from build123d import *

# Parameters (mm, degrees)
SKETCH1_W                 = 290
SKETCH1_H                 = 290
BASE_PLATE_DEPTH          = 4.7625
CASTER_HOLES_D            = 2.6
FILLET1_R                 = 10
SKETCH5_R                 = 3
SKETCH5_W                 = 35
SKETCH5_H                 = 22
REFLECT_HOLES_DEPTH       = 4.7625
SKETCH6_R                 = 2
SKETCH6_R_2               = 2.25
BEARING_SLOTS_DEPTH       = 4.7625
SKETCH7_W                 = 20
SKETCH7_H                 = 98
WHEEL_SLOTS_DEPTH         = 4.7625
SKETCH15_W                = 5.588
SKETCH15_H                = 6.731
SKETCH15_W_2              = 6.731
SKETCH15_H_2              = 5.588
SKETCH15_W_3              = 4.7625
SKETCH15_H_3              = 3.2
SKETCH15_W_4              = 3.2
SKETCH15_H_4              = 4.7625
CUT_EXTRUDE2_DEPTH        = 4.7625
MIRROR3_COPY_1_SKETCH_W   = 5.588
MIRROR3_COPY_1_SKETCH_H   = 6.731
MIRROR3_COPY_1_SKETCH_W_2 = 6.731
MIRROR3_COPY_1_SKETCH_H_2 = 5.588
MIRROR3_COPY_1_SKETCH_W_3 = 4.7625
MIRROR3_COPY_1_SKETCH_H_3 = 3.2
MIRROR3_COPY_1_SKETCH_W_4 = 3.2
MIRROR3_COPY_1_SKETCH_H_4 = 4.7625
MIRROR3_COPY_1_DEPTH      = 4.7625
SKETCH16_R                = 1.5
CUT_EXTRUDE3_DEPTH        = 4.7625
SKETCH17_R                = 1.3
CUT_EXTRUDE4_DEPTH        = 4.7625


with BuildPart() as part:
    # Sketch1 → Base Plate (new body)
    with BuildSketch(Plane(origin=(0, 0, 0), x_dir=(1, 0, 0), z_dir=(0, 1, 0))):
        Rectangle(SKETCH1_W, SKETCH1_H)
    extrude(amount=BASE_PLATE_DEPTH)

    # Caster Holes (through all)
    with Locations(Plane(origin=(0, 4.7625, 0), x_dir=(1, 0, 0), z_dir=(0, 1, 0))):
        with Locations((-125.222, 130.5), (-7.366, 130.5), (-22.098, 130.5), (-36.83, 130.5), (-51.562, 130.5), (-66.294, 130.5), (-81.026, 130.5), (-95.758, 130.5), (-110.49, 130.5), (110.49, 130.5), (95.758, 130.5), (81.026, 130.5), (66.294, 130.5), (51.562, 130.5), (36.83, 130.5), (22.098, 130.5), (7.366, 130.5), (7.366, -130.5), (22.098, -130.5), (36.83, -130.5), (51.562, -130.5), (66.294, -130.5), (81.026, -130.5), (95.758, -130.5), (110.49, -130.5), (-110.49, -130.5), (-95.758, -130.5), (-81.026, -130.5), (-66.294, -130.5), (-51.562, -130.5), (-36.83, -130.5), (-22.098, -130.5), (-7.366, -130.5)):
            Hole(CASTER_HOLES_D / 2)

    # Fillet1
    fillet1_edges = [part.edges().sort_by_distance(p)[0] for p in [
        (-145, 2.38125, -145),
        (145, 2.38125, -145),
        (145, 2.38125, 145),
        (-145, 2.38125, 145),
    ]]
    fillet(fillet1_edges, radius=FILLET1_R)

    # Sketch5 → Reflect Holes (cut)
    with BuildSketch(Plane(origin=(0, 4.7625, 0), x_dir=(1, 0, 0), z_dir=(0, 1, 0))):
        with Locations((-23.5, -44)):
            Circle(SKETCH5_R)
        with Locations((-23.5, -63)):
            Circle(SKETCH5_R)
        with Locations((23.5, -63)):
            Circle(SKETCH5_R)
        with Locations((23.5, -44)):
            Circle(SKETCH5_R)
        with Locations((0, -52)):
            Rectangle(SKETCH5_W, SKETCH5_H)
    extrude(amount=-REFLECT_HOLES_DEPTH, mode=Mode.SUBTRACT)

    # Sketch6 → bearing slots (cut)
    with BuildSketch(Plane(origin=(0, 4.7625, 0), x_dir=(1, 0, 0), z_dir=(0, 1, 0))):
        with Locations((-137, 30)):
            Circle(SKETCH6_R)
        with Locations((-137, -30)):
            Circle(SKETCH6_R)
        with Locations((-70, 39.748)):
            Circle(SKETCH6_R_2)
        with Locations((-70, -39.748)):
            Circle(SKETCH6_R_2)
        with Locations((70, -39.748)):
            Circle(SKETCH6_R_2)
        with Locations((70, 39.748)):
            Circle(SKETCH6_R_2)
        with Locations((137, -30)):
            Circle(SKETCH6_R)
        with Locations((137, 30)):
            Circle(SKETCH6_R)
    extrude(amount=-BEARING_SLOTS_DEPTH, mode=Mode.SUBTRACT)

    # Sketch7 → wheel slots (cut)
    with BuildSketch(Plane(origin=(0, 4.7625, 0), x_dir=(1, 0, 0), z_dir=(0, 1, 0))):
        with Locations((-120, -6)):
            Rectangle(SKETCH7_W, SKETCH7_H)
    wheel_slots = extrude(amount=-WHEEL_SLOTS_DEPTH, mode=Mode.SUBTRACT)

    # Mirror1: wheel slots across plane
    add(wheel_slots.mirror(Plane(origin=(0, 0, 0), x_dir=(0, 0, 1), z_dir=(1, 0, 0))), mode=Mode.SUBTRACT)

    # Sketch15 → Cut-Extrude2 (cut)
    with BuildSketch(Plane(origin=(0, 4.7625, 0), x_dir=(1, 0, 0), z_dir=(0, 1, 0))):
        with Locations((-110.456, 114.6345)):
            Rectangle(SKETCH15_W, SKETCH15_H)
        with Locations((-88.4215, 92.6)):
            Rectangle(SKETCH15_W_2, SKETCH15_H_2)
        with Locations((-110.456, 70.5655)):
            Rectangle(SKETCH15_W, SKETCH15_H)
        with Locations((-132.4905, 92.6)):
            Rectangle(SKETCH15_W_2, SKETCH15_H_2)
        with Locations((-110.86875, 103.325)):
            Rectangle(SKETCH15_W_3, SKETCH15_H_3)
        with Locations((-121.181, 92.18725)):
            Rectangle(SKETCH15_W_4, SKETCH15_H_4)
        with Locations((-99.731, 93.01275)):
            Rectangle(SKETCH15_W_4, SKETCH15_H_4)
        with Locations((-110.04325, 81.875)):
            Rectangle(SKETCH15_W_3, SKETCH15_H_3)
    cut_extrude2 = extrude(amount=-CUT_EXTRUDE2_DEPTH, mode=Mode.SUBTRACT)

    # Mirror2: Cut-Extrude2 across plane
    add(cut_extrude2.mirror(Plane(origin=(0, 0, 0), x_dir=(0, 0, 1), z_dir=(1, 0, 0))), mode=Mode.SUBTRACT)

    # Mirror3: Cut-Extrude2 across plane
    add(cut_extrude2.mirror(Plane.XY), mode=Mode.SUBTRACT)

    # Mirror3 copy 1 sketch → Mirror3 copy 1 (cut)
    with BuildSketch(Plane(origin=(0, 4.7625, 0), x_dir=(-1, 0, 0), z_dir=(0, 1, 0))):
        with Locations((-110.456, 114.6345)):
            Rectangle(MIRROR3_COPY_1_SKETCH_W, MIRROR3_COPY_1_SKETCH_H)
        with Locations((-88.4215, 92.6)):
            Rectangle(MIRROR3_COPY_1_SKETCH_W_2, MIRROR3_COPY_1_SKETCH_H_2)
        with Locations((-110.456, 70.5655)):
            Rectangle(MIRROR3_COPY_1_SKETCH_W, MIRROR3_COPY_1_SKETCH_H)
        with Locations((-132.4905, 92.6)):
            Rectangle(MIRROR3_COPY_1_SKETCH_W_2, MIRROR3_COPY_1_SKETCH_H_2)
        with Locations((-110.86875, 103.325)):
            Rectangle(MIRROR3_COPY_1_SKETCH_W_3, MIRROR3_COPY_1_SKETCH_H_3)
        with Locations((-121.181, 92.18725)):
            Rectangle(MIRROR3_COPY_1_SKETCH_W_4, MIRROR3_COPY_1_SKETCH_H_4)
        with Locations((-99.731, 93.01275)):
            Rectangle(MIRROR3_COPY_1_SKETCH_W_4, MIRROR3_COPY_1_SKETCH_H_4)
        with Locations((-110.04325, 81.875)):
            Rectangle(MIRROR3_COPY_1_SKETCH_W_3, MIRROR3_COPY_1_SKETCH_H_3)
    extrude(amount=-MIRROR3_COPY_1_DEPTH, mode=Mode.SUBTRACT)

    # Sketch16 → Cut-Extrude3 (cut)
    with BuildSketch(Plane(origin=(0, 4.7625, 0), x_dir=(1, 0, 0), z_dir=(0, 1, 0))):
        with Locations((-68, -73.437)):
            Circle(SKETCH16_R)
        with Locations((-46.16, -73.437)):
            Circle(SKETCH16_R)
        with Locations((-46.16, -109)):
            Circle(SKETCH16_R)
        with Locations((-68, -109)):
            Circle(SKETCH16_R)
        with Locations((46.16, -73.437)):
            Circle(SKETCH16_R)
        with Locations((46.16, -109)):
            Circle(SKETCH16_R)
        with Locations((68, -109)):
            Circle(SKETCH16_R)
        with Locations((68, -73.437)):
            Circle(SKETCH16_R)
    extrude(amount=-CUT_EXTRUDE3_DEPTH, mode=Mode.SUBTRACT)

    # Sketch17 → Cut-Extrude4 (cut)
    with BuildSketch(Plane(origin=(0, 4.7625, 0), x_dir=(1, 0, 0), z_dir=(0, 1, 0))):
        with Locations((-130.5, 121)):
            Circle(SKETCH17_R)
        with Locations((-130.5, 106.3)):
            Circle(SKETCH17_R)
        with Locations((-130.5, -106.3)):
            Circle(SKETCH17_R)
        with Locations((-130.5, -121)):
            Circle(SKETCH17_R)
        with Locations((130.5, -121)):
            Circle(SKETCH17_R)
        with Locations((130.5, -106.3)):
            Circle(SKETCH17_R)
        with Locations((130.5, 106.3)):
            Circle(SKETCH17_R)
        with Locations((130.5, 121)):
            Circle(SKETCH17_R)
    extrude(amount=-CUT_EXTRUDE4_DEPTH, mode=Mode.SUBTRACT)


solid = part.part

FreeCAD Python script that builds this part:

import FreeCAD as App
import Part
import Sketcher
Q = App.Units.Quantity


def edges_at(feature, points):
    """Names of the edges that pass closest to the given points."""
    edges = feature.Shape.Edges
    near = lambda p: min(range(len(edges)), key=lambda i: edges[i].distToShape(Part.Vertex(*p))[0])
    return sorted({f"Edge{near(p) + 1}" for p in points})

doc = App.newDocument("Part")
body = doc.addObject("PartDesign::Body", "Body")

sketch1 = body.newObject("Sketcher::SketchObject", "Sketch")
sketch1.AttachmentSupport = (doc.getObject("XZ_Plane"), [""])
sketch1.MapMode = "FlatFace"
sketch1.addGeometry([
    Part.LineSegment(App.Vector(-145, -145, 0), App.Vector(-145, 145, 0)),
    Part.LineSegment(App.Vector(-145, 145, 0), App.Vector(145, 145, 0)),
    Part.LineSegment(App.Vector(145, 145, 0), App.Vector(145, -145, 0)),
    Part.LineSegment(App.Vector(145, -145, 0), App.Vector(-145, -145, 0)),
], False)
sketch1.addConstraint([
    Sketcher.Constraint("Coincident", 0, 2, 1, 1),
    Sketcher.Constraint("Coincident", 1, 2, 2, 1),
    Sketcher.Constraint("Coincident", 2, 2, 3, 1),
    Sketcher.Constraint("Coincident", 3, 2, 0, 1),
    Sketcher.Constraint("Vertical", 0),
    Sketcher.Constraint("Horizontal", 1),
    Sketcher.Constraint("Vertical", 2),
    Sketcher.Constraint("Horizontal", 3),
    Sketcher.Constraint("Symmetric", 0, 2, 2, 2, -1, 1),
    Sketcher.Constraint("Equal", 3, 0),
    Sketcher.Constraint("DistanceX", 1, 1, 1, 2, Q("290 mm")),
])
pad1 = body.newObject("PartDesign::Pad", "Pad")
pad1.Profile = sketch1
pad1.Length = 4.7625
pad1.Reversed = True

sketch2 = body.newObject("Sketcher::SketchObject", "Sketch001")
sketch2.AttachmentSupport = (doc.getObject("XZ_Plane"), [""])
sketch2.MapMode = "FlatFace"
sketch2.AttachmentOffset = App.Placement(App.Vector(0, 0, -4.7625), App.Rotation())
sketch2.addGeometry([
    Part.Circle(App.Vector(-125.2, -130.5, 0), App.Vector(0, 0, 1), 1.3),
    Part.Circle(App.Vector(-7.4, -130.5, 0), App.Vector(0, 0, 1), 1.3),
    Part.Circle(App.Vector(-22.1, -130.5, 0), App.Vector(0, 0, 1), 1.3),
    Part.Circle(App.Vector(-36.8, -130.5, 0), App.Vector(0, 0, 1), 1.3),
    Part.Circle(App.Vector(-51.6, -130.5, 0), App.Vector(0, 0, 1), 1.3),
    Part.Circle(App.Vector(-66.3, -130.5, 0), App.Vector(0, 0, 1), 1.3),
    Part.Circle(App.Vector(-81, -130.5, 0), App.Vector(0, 0, 1), 1.3),
    Part.Circle(App.Vector(-95.8, -130.5, 0), App.Vector(0, 0, 1), 1.3),
    Part.Circle(App.Vector(-110.5, -130.5, 0), App.Vector(0, 0, 1), 1.3),
    Part.Circle(App.Vector(110.5, -130.5, 0), App.Vector(0, 0, 1), 1.3),
    Part.Circle(App.Vector(95.8, -130.5, 0), App.Vector(0, 0, 1), 1.3),
    Part.Circle(App.Vector(81, -130.5, 0), App.Vector(0, 0, 1), 1.3),
    Part.Circle(App.Vector(66.3, -130.5, 0), App.Vector(0, 0, 1), 1.3),
    Part.Circle(App.Vector(51.6, -130.5, 0), App.Vector(0, 0, 1), 1.3),
    Part.Circle(App.Vector(36.8, -130.5, 0), App.Vector(0, 0, 1), 1.3),
    Part.Circle(App.Vector(22.1, -130.5, 0), App.Vector(0, 0, 1), 1.3),
    Part.Circle(App.Vector(7.4, -130.5, 0), App.Vector(0, 0, 1), 1.3),
    Part.Circle(App.Vector(7.4, 130.5, 0), App.Vector(0, 0, 1), 1.3),
    Part.Circle(App.Vector(22.1, 130.5, 0), App.Vector(0, 0, 1), 1.3),
    Part.Circle(App.Vector(36.8, 130.5, 0), App.Vector(0, 0, 1), 1.3),
    Part.Circle(App.Vector(51.6, 130.5, 0), App.Vector(0, 0, 1), 1.3),
    Part.Circle(App.Vector(66.3, 130.5, 0), App.Vector(0, 0, 1), 1.3),
    Part.Circle(App.Vector(81, 130.5, 0), App.Vector(0, 0, 1), 1.3),
    Part.Circle(App.Vector(95.8, 130.5, 0), App.Vector(0, 0, 1), 1.3),
    Part.Circle(App.Vector(110.5, 130.5, 0), App.Vector(0, 0, 1), 1.3),
    Part.Circle(App.Vector(-110.5, 130.5, 0), App.Vector(0, 0, 1), 1.3),
    Part.Circle(App.Vector(-95.8, 130.5, 0), App.Vector(0, 0, 1), 1.3),
    Part.Circle(App.Vector(-81, 130.5, 0), App.Vector(0, 0, 1), 1.3),
    Part.Circle(App.Vector(-66.3, 130.5, 0), App.Vector(0, 0, 1), 1.3),
    Part.Circle(App.Vector(-51.6, 130.5, 0), App.Vector(0, 0, 1), 1.3),
    Part.Circle(App.Vector(-36.8, 130.5, 0), App.Vector(0, 0, 1), 1.3),
    Part.Circle(App.Vector(-22.1, 130.5, 0), App.Vector(0, 0, 1), 1.3),
    Part.Circle(App.Vector(-7.4, 130.5, 0), App.Vector(0, 0, 1), 1.3),
], False)
sketch2.addConstraint([
    Sketcher.Constraint("Equal", 0, 1),
    Sketcher.Constraint("Equal", 1, 2),
    Sketcher.Constraint("Equal", 2, 3),
    Sketcher.Constraint("Equal", 3, 4),
    Sketcher.Constraint("Equal", 4, 5),
    Sketcher.Constraint("Equal", 5, 6),
    Sketcher.Constraint("Equal", 6, 7),
    Sketcher.Constraint("Equal", 7, 8),
    Sketcher.Constraint("Equal", 8, 9),
    Sketcher.Constraint("Equal", 9, 10),
    Sketcher.Constraint("Equal", 10, 11),
    Sketcher.Constraint("Equal", 11, 12),
    Sketcher.Constraint("Equal", 12, 13),
    Sketcher.Constraint("Equal", 13, 14),
    Sketcher.Constraint("Equal", 14, 15),
    Sketcher.Constraint("Equal", 15, 16),
    Sketcher.Constraint("Equal", 16, 17),
    Sketcher.Constraint("Equal", 17, 18),
    Sketcher.Constraint("Equal", 18, 19),
    Sketcher.Constraint("Equal", 19, 20),
    Sketcher.Constraint("Equal", 20, 21),
    Sketcher.Constraint("Equal", 21, 22),
    Sketcher.Constraint("Equal", 22, 23),
    Sketcher.Constraint("Equal", 23, 24),
    Sketcher.Constraint("Equal", 24, 25),
    Sketcher.Constraint("Equal", 25, 26),
    Sketcher.Constraint("Equal", 26, 27),
    Sketcher.Constraint("Equal", 27, 28),
    Sketcher.Constraint("Equal", 28, 29),
    Sketcher.Constraint("Equal", 29, 30),
    Sketcher.Constraint("Equal", 30, 31),
    Sketcher.Constraint("Equal", 31, 32),
    Sketcher.Constraint("Symmetric", 1, 3, 17, 3, -1, 1),
    Sketcher.Constraint("Symmetric", 2, 3, 18, 3, -1, 1),
    Sketcher.Constraint("Symmetric", 3, 3, 19, 3, -1, 1),
    Sketcher.Constraint("Symmetric", 4, 3, 20, 3, -1, 1),
    Sketcher.Constraint("Symmetric", 5, 3, 21, 3, -1, 1),
    Sketcher.Constraint("Symmetric", 6, 3, 22, 3, -1, 1),
    Sketcher.Constraint("Symmetric", 7, 3, 23, 3, -1, 1),
    Sketcher.Constraint("Symmetric", 8, 3, 24, 3, -1, 1),
    Sketcher.Constraint("Symmetric", 9, 3, 25, 3, -1, 1),
    Sketcher.Constraint("Symmetric", 10, 3, 26, 3, -1, 1),
    Sketcher.Constraint("Symmetric", 11, 3, 27, 3, -1, 1),
    Sketcher.Constraint("Symmetric", 12, 3, 28, 3, -1, 1),
    Sketcher.Constraint("Symmetric", 13, 3, 29, 3, -1, 1),
    Sketcher.Constraint("Symmetric", 14, 3, 30, 3, -1, 1),
    Sketcher.Constraint("Symmetric", 15, 3, 31, 3, -1, 1),
    Sketcher.Constraint("Symmetric", 16, 3, 32, 3, -1, 1),
    Sketcher.Constraint("Symmetric", 8, 3, 9, 3, -2),
    Sketcher.Constraint("Symmetric", 7, 3, 10, 3, -2),
    Sketcher.Constraint("Symmetric", 6, 3, 11, 3, -2),
    Sketcher.Constraint("Symmetric", 5, 3, 12, 3, -2),
    Sketcher.Constraint("Symmetric", 4, 3, 13, 3, -2),
    Sketcher.Constraint("Symmetric", 3, 3, 14, 3, -2),
    Sketcher.Constraint("Symmetric", 2, 3, 15, 3, -2),
    Sketcher.Constraint("Symmetric", 1, 3, 16, 3, -2),
    Sketcher.Constraint("Horizontal", 0, 3, 1, 3),
    Sketcher.Constraint("Horizontal", 1, 3, 2, 3),
    Sketcher.Constraint("Horizontal", 2, 3, 3, 3),
    Sketcher.Constraint("Horizontal", 3, 3, 4, 3),
    Sketcher.Constraint("Horizontal", 4, 3, 5, 3),
    Sketcher.Constraint("Horizontal", 5, 3, 6, 3),
    Sketcher.Constraint("Horizontal", 6, 3, 7, 3),
    Sketcher.Constraint("Horizontal", 7, 3, 8, 3),
    Sketcher.Constraint("Diameter", 0, Q("2.6 mm")),
    Sketcher.Constraint("DistanceY", 16, 3, 17, 3, Q("261 mm")),
    Sketcher.Constraint("DistanceX", 3, 3, -1, 1, Q("36.83 mm")),
    Sketcher.Constraint("DistanceX", 8, 3, -1, 1, Q("110.49 mm")),
    Sketcher.Constraint("DistanceX", 0, 3, 4, 3, Q("73.66 mm")),
    Sketcher.Constraint("DistanceX", 4, 3, 10, 3, Q("147.32 mm")),
    Sketcher.Constraint("DistanceX", 1, 3, 12, 3, Q("73.66 mm")),
    Sketcher.Constraint("DistanceX", 17, 3, 22, 3, Q("73.66 mm")),
    Sketcher.Constraint("DistanceX", 18, 3, 23, 3, Q("73.66 mm")),
    Sketcher.Constraint("DistanceX", 0, 3, -1, 1, Q("125.222 mm")),
    Sketcher.Constraint("DistanceX", 1, 3, -1, 1, Q("7.366 mm")),
])
doc.recompute()
hole = body.newObject("PartDesign::Hole", "Hole")
hole.Profile = sketch2
hole.ThreadType = "None"
hole.Diameter = 2.6
hole.DepthType = "ThroughAll"
hole.Reversed = True
doc.recompute()

fillet = body.newObject("PartDesign::Fillet", "Fillet")
fillet.Base = (hole, edges_at(hole, [
    (-145, 2.381, -145),
    (145, 2.381, -145),
    (145, 2.381, 145),
    (-145, 2.381, 145),
]))
fillet.Radius = 10

sketch3 = body.newObject("Sketcher::SketchObject", "Sketch002")
sketch3.AttachmentSupport = (doc.getObject("XZ_Plane"), [""])
sketch3.MapMode = "FlatFace"
sketch3.AttachmentOffset = App.Placement(App.Vector(0, 0, -4.7625), App.Rotation())
sketch3.addGeometry([
    Part.Circle(App.Vector(-23.5, 44, 0), App.Vector(0, 0, 1), 3),
    Part.Circle(App.Vector(-23.5, 63, 0), App.Vector(0, 0, 1), 3),
    Part.Circle(App.Vector(23.5, 63, 0), App.Vector(0, 0, 1), 3),
    Part.Circle(App.Vector(23.5, 44, 0), App.Vector(0, 0, 1), 3),
    Part.LineSegment(App.Vector(-17.5, 41, 0), App.Vector(-17.5, 63, 0)),
    Part.LineSegment(App.Vector(-17.5, 63, 0), App.Vector(17.5, 63, 0)),
    Part.LineSegment(App.Vector(17.5, 63, 0), App.Vector(17.5, 41, 0)),
    Part.LineSegment(App.Vector(17.5, 41, 0), App.Vector(-17.5, 41, 0)),
], False)
sketch3.addConstraint([
    Sketcher.Constraint("Coincident", 4, 2, 5, 1),
    Sketcher.Constraint("Coincident", 5, 2, 6, 1),
    Sketcher.Constraint("Coincident", 6, 2, 7, 1),
    Sketcher.Constraint("Coincident", 7, 2, 4, 1),
    Sketcher.Constraint("Vertical", 4),
    Sketcher.Constraint("Horizontal", 5),
    Sketcher.Constraint("Vertical", 6),
    Sketcher.Constraint("Horizontal", 7),
    Sketcher.Constraint("Equal", 0, 1),
    Sketcher.Constraint("Equal", 1, 2),
    Sketcher.Constraint("Equal", 2, 3),
    Sketcher.Constraint("Symmetric", 1, 3, 2, 3, -2),
    Sketcher.Constraint("Symmetric", 0, 3, 3, 3, -2),
    Sketcher.Constraint("Horizontal", 2, 3, 4, 2),
    Sketcher.Constraint("Vertical", 0, 3, 1, 3),
    Sketcher.Constraint("Diameter", 0, Q("6 mm")),
    Sketcher.Constraint("DistanceX", 5, 1, 5, 2, Q("35 mm")),
    Sketcher.Constraint("DistanceY", 4, 1, 4, 2, Q("22 mm")),
    Sketcher.Constraint("DistanceY", -1, 1, 0, 3, Q("44 mm")),
    Sketcher.Constraint("DistanceY", -1, 1, 1, 3, Q("63 mm")),
    Sketcher.Constraint("DistanceX", 1, 3, 2, 3, Q("47 mm")),
    Sketcher.Constraint("DistanceX", 1, 3, 4, 2, Q("6 mm")),
])
pocket1 = body.newObject("PartDesign::Pocket", "Pocket")
pocket1.Profile = sketch3
pocket1.Length = 4.7625
pocket1.Reversed = True

sketch4 = body.newObject("Sketcher::SketchObject", "Sketch003")
sketch4.AttachmentSupport = (doc.getObject("XZ_Plane"), [""])
sketch4.MapMode = "FlatFace"
sketch4.AttachmentOffset = App.Placement(App.Vector(0, 0, -4.7625), App.Rotation())
sketch4.addGeometry([
    Part.Circle(App.Vector(-137, -30, 0), App.Vector(0, 0, 1), 2),
    Part.Circle(App.Vector(-137, 30, 0), App.Vector(0, 0, 1), 2),
    Part.Circle(App.Vector(-70, -39.7, 0), App.Vector(0, 0, 1), 2.2),
    Part.Circle(App.Vector(-70, 39.7, 0), App.Vector(0, 0, 1), 2.2),
    Part.Circle(App.Vector(70, 39.7, 0), App.Vector(0, 0, 1), 2.2),
    Part.Circle(App.Vector(70, -39.7, 0), App.Vector(0, 0, 1), 2.2),
    Part.Circle(App.Vector(137, 30, 0), App.Vector(0, 0, 1), 2),
    Part.Circle(App.Vector(137, -30, 0), App.Vector(0, 0, 1), 2),
], False)
sketch4.addConstraint([
    Sketcher.Constraint("Equal", 0, 1),
    Sketcher.Constraint("Equal", 2, 3),
    Sketcher.Constraint("Equal", 3, 4),
    Sketcher.Constraint("Equal", 4, 5),
    Sketcher.Constraint("Equal", 1, 6),
    Sketcher.Constraint("Equal", 6, 7),
    Sketcher.Constraint("Symmetric", 2, 3, 4, 3, -1, 1),
    Sketcher.Constraint("Symmetric", 3, 3, 5, 3, -1, 1),
    Sketcher.Constraint("Symmetric", 0, 3, 6, 3, -1, 1),
    Sketcher.Constraint("Symmetric", 1, 3, 7, 3, -1, 1),
    Sketcher.Constraint("Symmetric", 3, 3, 4, 3, -2),
    Sketcher.Constraint("Symmetric", 1, 3, 6, 3, -2),
    Sketcher.Constraint("Diameter", 0, Q("4 mm")),
    Sketcher.Constraint("Diameter", 2, Q("4.5 mm")),
    Sketcher.Constraint("DistanceX", 0, 3, -1, 1, Q("137 mm")),
    Sketcher.Constraint("DistanceY", 0, 3, -1, 1, Q("30 mm")),
    Sketcher.Constraint("DistanceX", 2, 3, -1, 1, Q("70 mm")),
    Sketcher.Constraint("DistanceY", 2, 3, -1, 1, Q("39.748 mm")),
])
pocket2 = body.newObject("PartDesign::Pocket", "Pocket001")
pocket2.Profile = sketch4
pocket2.Length = 4.7625
pocket2.Reversed = True

sketch5 = body.newObject("Sketcher::SketchObject", "Sketch004")
sketch5.AttachmentSupport = (doc.getObject("XZ_Plane"), [""])
sketch5.MapMode = "FlatFace"
sketch5.AttachmentOffset = App.Placement(App.Vector(0, 0, -4.7625), App.Rotation())
sketch5.addGeometry([
    Part.LineSegment(App.Vector(-130, -43, 0), App.Vector(-130, 55, 0)),
    Part.LineSegment(App.Vector(-130, 55, 0), App.Vector(-110, 55, 0)),
    Part.LineSegment(App.Vector(-110, 55, 0), App.Vector(-110, -43, 0)),
    Part.LineSegment(App.Vector(-110, -43, 0), App.Vector(-130, -43, 0)),
], False)
sketch5.addConstraint([
    Sketcher.Constraint("Coincident", 0, 2, 1, 1),
    Sketcher.Constraint("Coincident", 1, 2, 2, 1),
    Sketcher.Constraint("Coincident", 2, 2, 3, 1),
    Sketcher.Constraint("Coincident", 3, 2, 0, 1),
    Sketcher.Constraint("Vertical", 0),
    Sketcher.Constraint("Horizontal", 1),
    Sketcher.Constraint("Vertical", 2),
    Sketcher.Constraint("Horizontal", 3),
    Sketcher.Constraint("DistanceX", 1, 1, 1, 2, Q("20 mm")),
    Sketcher.Constraint("DistanceY", 0, 1, 0, 2, Q("98 mm")),
    Sketcher.Constraint("DistanceX", 0, 2, -1, 1, Q("130 mm")),
    Sketcher.Constraint("DistanceY", -1, 1, 0, 2, Q("55 mm")),
])
pocket3 = body.newObject("PartDesign::Pocket", "Pocket002")
pocket3.Profile = sketch5
pocket3.Length = 4.7625
pocket3.Reversed = True
doc.recompute()

mirrored = body.newObject("PartDesign::Mirrored", "Mirrored")
mirrored.Originals = [pocket3]
mirrored.MirrorPlane = (doc.getObject("YZ_Plane"), [""])
body.Tip = mirrored

sketch6 = body.newObject("Sketcher::SketchObject", "Sketch005")
sketch6.AttachmentSupport = (doc.getObject("XZ_Plane"), [""])
sketch6.MapMode = "FlatFace"
sketch6.AttachmentOffset = App.Placement(App.Vector(0, 0, -4.7625), App.Rotation())
sketch6.addGeometry([
    Part.LineSegment(App.Vector(-113.2, -118, 0), App.Vector(-113.2, -111.3, 0)),
    Part.LineSegment(App.Vector(-113.2, -111.3, 0), App.Vector(-107.7, -111.3, 0)),
    Part.LineSegment(App.Vector(-107.7, -111.3, 0), App.Vector(-107.7, -118, 0)),
    Part.LineSegment(App.Vector(-107.7, -118, 0), App.Vector(-113.2, -118, 0)),
    Part.LineSegment(App.Vector(-91.8, -95.4, 0), App.Vector(-91.8, -89.8, 0)),
    Part.LineSegment(App.Vector(-91.8, -89.8, 0), App.Vector(-85.1, -89.8, 0)),
    Part.LineSegment(App.Vector(-85.1, -89.8, 0), App.Vector(-85.1, -95.4, 0)),
    Part.LineSegment(App.Vector(-85.1, -95.4, 0), App.Vector(-91.8, -95.4, 0)),
    Part.LineSegment(App.Vector(-113.2, -73.9, 0), App.Vector(-113.2, -67.2, 0)),
    Part.LineSegment(App.Vector(-113.2, -67.2, 0), App.Vector(-107.7, -67.2, 0)),
    Part.LineSegment(App.Vector(-107.7, -67.2, 0), App.Vector(-107.7, -73.9, 0)),
    Part.LineSegment(App.Vector(-107.7, -73.9, 0), App.Vector(-113.2, -73.9, 0)),
    Part.LineSegment(App.Vector(-135.9, -95.4, 0), App.Vector(-135.9, -89.8, 0)),
    Part.LineSegment(App.Vector(-135.9, -89.8, 0), App.Vector(-129.1, -89.8, 0)),
    Part.LineSegment(App.Vector(-129.1, -89.8, 0), App.Vector(-129.1, -95.4, 0)),
    Part.LineSegment(App.Vector(-129.1, -95.4, 0), App.Vector(-135.9, -95.4, 0)),
    Part.LineSegment(App.Vector(-113.2, -104.9, 0), App.Vector(-113.2, -101.7, 0)),
    Part.LineSegment(App.Vector(-113.2, -101.7, 0), App.Vector(-108.5, -101.7, 0)),
    Part.LineSegment(App.Vector(-108.5, -101.7, 0), App.Vector(-108.5, -104.9, 0)),
    Part.LineSegment(App.Vector(-108.5, -104.9, 0), App.Vector(-113.2, -104.9, 0)),
    Part.LineSegment(App.Vector(-122.8, -94.6, 0), App.Vector(-122.8, -89.8, 0)),
    Part.LineSegment(App.Vector(-122.8, -89.8, 0), App.Vector(-119.6, -89.8, 0)),
    Part.LineSegment(App.Vector(-119.6, -89.8, 0), App.Vector(-119.6, -94.6, 0)),
    Part.LineSegment(App.Vector(-119.6, -94.6, 0), App.Vector(-122.8, -94.6, 0)),
    Part.LineSegment(App.Vector(-101.3, -95.4, 0), App.Vector(-101.3, -90.6, 0)),
    Part.LineSegment(App.Vector(-101.3, -90.6, 0), App.Vector(-98.1, -90.6, 0)),
    Part.LineSegment(App.Vector(-98.1, -90.6, 0), App.Vector(-98.1, -95.4, 0)),
    Part.LineSegment(App.Vector(-98.1, -95.4, 0), App.Vector(-101.3, -95.4, 0)),
    Part.LineSegment(App.Vector(-112.4, -83.5, 0), App.Vector(-112.4, -80.3, 0)),
    Part.LineSegment(App.Vector(-112.4, -80.3, 0), App.Vector(-107.7, -80.3, 0)),
    Part.LineSegment(App.Vector(-107.7, -80.3, 0), App.Vector(-107.7, -83.5, 0)),
    Part.LineSegment(App.Vector(-107.7, -83.5, 0), App.Vector(-112.4, -83.5, 0)),
], False)
sketch6.addConstraint([
    Sketcher.Constraint("Coincident", 0, 2, 1, 1),
    Sketcher.Constraint("Coincident", 1, 2, 2, 1),
    Sketcher.Constraint("Coincident", 2, 2, 3, 1),
    Sketcher.Constraint("Coincident", 3, 2, 0, 1),
    Sketcher.Constraint("Coincident", 4, 2, 5, 1),
    Sketcher.Constraint("Coincident", 5, 2, 6, 1),
    Sketcher.Constraint("Coincident", 6, 2, 7, 1),
    Sketcher.Constraint("Coincident", 7, 2, 4, 1),
    Sketcher.Constraint("Coincident", 8, 2, 9, 1),
    Sketcher.Constraint("Coincident", 9, 2, 10, 1),
    Sketcher.Constraint("Coincident", 10, 2, 11, 1),
    Sketcher.Constraint("Coincident", 11, 2, 8, 1),
    Sketcher.Constraint("Coincident", 12, 2, 13, 1),
    Sketcher.Constraint("Coincident", 13, 2, 14, 1),
    Sketcher.Constraint("Coincident", 14, 2, 15, 1),
    Sketcher.Constraint("Coincident", 15, 2, 12, 1),
    Sketcher.Constraint("Coincident", 16, 2, 17, 1),
    Sketcher.Constraint("Coincident", 17, 2, 18, 1),
    Sketcher.Constraint("Coincident", 18, 2, 19, 1),
    Sketcher.Constraint("Coincident", 19, 2, 16, 1),
    Sketcher.Constraint("Coincident", 20, 2, 21, 1),
    Sketcher.Constraint("Coincident", 21, 2, 22, 1),
    Sketcher.Constraint("Coincident", 22, 2, 23, 1),
    Sketcher.Constraint("Coincident", 23, 2, 20, 1),
    Sketcher.Constraint("Coincident", 24, 2, 25, 1),
    Sketcher.Constraint("Coincident", 25, 2, 26, 1),
    Sketcher.Constraint("Coincident", 26, 2, 27, 1),
    Sketcher.Constraint("Coincident", 27, 2, 24, 1),
    Sketcher.Constraint("Coincident", 28, 2, 29, 1),
    Sketcher.Constraint("Coincident", 29, 2, 30, 1),
    Sketcher.Constraint("Coincident", 30, 2, 31, 1),
    Sketcher.Constraint("Coincident", 31, 2, 28, 1),
    Sketcher.Constraint("Vertical", 0),
    Sketcher.Constraint("Horizontal", 1),
    Sketcher.Constraint("Vertical", 2),
    Sketcher.Constraint("Horizontal", 3),
    Sketcher.Constraint("Vertical", 4),
    Sketcher.Constraint("Horizontal", 5),
    Sketcher.Constraint("Vertical", 6),
    Sketcher.Constraint("Horizontal", 7),
    Sketcher.Constraint("Vertical", 8),
    Sketcher.Constraint("Horizontal", 9),
    Sketcher.Constraint("Vertical", 10),
    Sketcher.Constraint("Horizontal", 11),
    Sketcher.Constraint("Vertical", 12),
    Sketcher.Constraint("Horizontal", 13),
    Sketcher.Constraint("Vertical", 14),
    Sketcher.Constraint("Horizontal", 15),
    Sketcher.Constraint("Vertical", 16),
    Sketcher.Constraint("Horizontal", 17),
    Sketcher.Constraint("Vertical", 18),
    Sketcher.Constraint("Horizontal", 19),
    Sketcher.Constraint("Vertical", 20),
    Sketcher.Constraint("Horizontal", 21),
    Sketcher.Constraint("Vertical", 22),
    Sketcher.Constraint("Horizontal", 23),
    Sketcher.Constraint("Vertical", 24),
    Sketcher.Constraint("Horizontal", 25),
    Sketcher.Constraint("Vertical", 26),
    Sketcher.Constraint("Horizontal", 27),
    Sketcher.Constraint("Vertical", 28),
    Sketcher.Constraint("Horizontal", 29),
    Sketcher.Constraint("Vertical", 30),
    Sketcher.Constraint("Horizontal", 31),
    Sketcher.Constraint("Horizontal", 5, 2, 12, 2),
    Sketcher.Constraint("Horizontal", 7, 2, 14, 2),
    Sketcher.Constraint("Horizontal", 13, 2, 20, 2),
    Sketcher.Constraint("Horizontal", 15, 2, 26, 2),
    Sketcher.Constraint("Vertical", 3, 2, 8, 2),
    Sketcher.Constraint("Vertical", 2, 2, 9, 2),
    Sketcher.Constraint("Vertical", 11, 2, 16, 2),
    Sketcher.Constraint("Vertical", 10, 2, 29, 2),
    Sketcher.Constraint("Equal", 7, 13),
    Sketcher.Constraint("Equal", 23, 25),
    Sketcher.Constraint("Equal", 19, 29),
    Sketcher.Constraint("Equal", 15, 0),
    Sketcher.Constraint("Equal", 11, 4),
    Sketcher.Constraint("Equal", 2, 8),
    Sketcher.Constraint("Equal", 27, 16),
    Sketcher.Constraint("Equal", 31, 20),
    Sketcher.Constraint("Equal", 22, 24),
    Sketcher.Constraint("Equal", 18, 28),
    Sketcher.Constraint("DistanceX", 21, 1, 21, 2, Q("3.2 mm")),
    Sketcher.Constraint("DistanceY", 2, 2, -1, 1, Q("118 mm")),
    Sketcher.Constraint("DistanceY", 8, 2, -1, 1, Q("67.2 mm")),
    Sketcher.Constraint("DistanceX", 1, 1, 1, 2, Q("5.588 mm")),
    Sketcher.Constraint("DistanceX", 5, 1, 5, 2, Q("6.731 mm")),
    Sketcher.Constraint("DistanceX", 0, 2, -1, 1, Q("113.25 mm")),
    Sketcher.Constraint("DistanceX", 17, 1, 17, 2, Q("4.7625 mm")),
    Sketcher.Constraint("DistanceX", 4, 2, -1, 1, Q("91.787 mm")),
    Sketcher.Constraint("DistanceY", 4, 2, -1, 1, Q("89.806 mm")),
    Sketcher.Constraint("DistanceX", 12, 2, -1, 1, Q("135.856 mm")),
    Sketcher.Constraint("DistanceY", 16, 2, -1, 1, Q("101.725 mm")),
    Sketcher.Constraint("DistanceX", 20, 2, -1, 1, Q("122.781 mm")),
    Sketcher.Constraint("DistanceX", 24, 2, -1, 1, Q("101.331 mm")),
    Sketcher.Constraint("DistanceY", 28, 2, -1, 1, Q("80.275 mm")),
])
pocket4 = body.newObject("PartDesign::Pocket", "Pocket003")
pocket4.Profile = sketch6
pocket4.Length = 4.7625
pocket4.Reversed = True
doc.recompute()

mirrored2 = body.newObject("PartDesign::Mirrored", "Mirrored001")
mirrored2.Originals = [pocket4]
mirrored2.MirrorPlane = (doc.getObject("YZ_Plane"), [""])
body.Tip = mirrored2
doc.recompute()

mirrored3 = body.newObject("PartDesign::Mirrored", "Mirrored002")
mirrored3.Originals = [pocket4]
mirrored3.MirrorPlane = (doc.getObject("XY_Plane"), [""])
body.Tip = mirrored3

sketch7 = body.newObject("Sketcher::SketchObject", "Sketch006")
sketch7.AttachmentSupport = (doc.getObject("XZ_Plane"), [""])
sketch7.MapMode = "FlatFace"
sketch7.AttachmentOffset = App.Placement(App.Vector(0, 0, -4.7625), App.Rotation())
sketch7.addGeometry([
    Part.LineSegment(App.Vector(113.2, 118, 0), App.Vector(113.2, 111.3, 0)),
    Part.LineSegment(App.Vector(113.2, 111.3, 0), App.Vector(107.7, 111.3, 0)),
    Part.LineSegment(App.Vector(107.7, 111.3, 0), App.Vector(107.7, 118, 0)),
    Part.LineSegment(App.Vector(107.7, 118, 0), App.Vector(113.2, 118, 0)),
    Part.LineSegment(App.Vector(91.8, 95.4, 0), App.Vector(91.8, 89.8, 0)),
    Part.LineSegment(App.Vector(91.8, 89.8, 0), App.Vector(85.1, 89.8, 0)),
    Part.LineSegment(App.Vector(85.1, 89.8, 0), App.Vector(85.1, 95.4, 0)),
    Part.LineSegment(App.Vector(85.1, 95.4, 0), App.Vector(91.8, 95.4, 0)),
    Part.LineSegment(App.Vector(113.2, 73.9, 0), App.Vector(113.2, 67.2, 0)),
    Part.LineSegment(App.Vector(113.2, 67.2, 0), App.Vector(107.7, 67.2, 0)),
    Part.LineSegment(App.Vector(107.7, 67.2, 0), App.Vector(107.7, 73.9, 0)),
    Part.LineSegment(App.Vector(107.7, 73.9, 0), App.Vector(113.2, 73.9, 0)),
    Part.LineSegment(App.Vector(135.9, 95.4, 0), App.Vector(135.9, 89.8, 0)),
    Part.LineSegment(App.Vector(135.9, 89.8, 0), App.Vector(129.1, 89.8, 0)),
    Part.LineSegment(App.Vector(129.1, 89.8, 0), App.Vector(129.1, 95.4, 0)),
    Part.LineSegment(App.Vector(129.1, 95.4, 0), App.Vector(135.9, 95.4, 0)),
    Part.LineSegment(App.Vector(113.2, 104.9, 0), App.Vector(113.2, 101.7, 0)),
    Part.LineSegment(App.Vector(113.2, 101.7, 0), App.Vector(108.5, 101.7, 0)),
    Part.LineSegment(App.Vector(108.5, 101.7, 0), App.Vector(108.5, 104.9, 0)),
    Part.LineSegment(App.Vector(108.5, 104.9, 0), App.Vector(113.2, 104.9, 0)),
    Part.LineSegment(App.Vector(122.8, 94.6, 0), App.Vector(122.8, 89.8, 0)),
    Part.LineSegment(App.Vector(122.8, 89.8, 0), App.Vector(119.6, 89.8, 0)),
    Part.LineSegment(App.Vector(119.6, 89.8, 0), App.Vector(119.6, 94.6, 0)),
    Part.LineSegment(App.Vector(119.6, 94.6, 0), App.Vector(122.8, 94.6, 0)),
    Part.LineSegment(App.Vector(101.3, 95.4, 0), App.Vector(101.3, 90.6, 0)),
    Part.LineSegment(App.Vector(101.3, 90.6, 0), App.Vector(98.1, 90.6, 0)),
    Part.LineSegment(App.Vector(98.1, 90.6, 0), App.Vector(98.1, 95.4, 0)),
    Part.LineSegment(App.Vector(98.1, 95.4, 0), App.Vector(101.3, 95.4, 0)),
    Part.LineSegment(App.Vector(112.4, 83.5, 0), App.Vector(112.4, 80.3, 0)),
    Part.LineSegment(App.Vector(112.4, 80.3, 0), App.Vector(107.7, 80.3, 0)),
    Part.LineSegment(App.Vector(107.7, 80.3, 0), App.Vector(107.7, 83.5, 0)),
    Part.LineSegment(App.Vector(107.7, 83.5, 0), App.Vector(112.4, 83.5, 0)),
], False)
sketch7.addConstraint([
    Sketcher.Constraint("Coincident", 0, 2, 1, 1),
    Sketcher.Constraint("Coincident", 1, 2, 2, 1),
    Sketcher.Constraint("Coincident", 2, 2, 3, 1),
    Sketcher.Constraint("Coincident", 3, 2, 0, 1),
    Sketcher.Constraint("Coincident", 4, 2, 5, 1),
    Sketcher.Constraint("Coincident", 5, 2, 6, 1),
    Sketcher.Constraint("Coincident", 6, 2, 7, 1),
    Sketcher.Constraint("Coincident", 7, 2, 4, 1),
    Sketcher.Constraint("Coincident", 8, 2, 9, 1),
    Sketcher.Constraint("Coincident", 9, 2, 10, 1),
    Sketcher.Constraint("Coincident", 10, 2, 11, 1),
    Sketcher.Constraint("Coincident", 11, 2, 8, 1),
    Sketcher.Constraint("Coincident", 12, 2, 13, 1),
    Sketcher.Constraint("Coincident", 13, 2, 14, 1),
    Sketcher.Constraint("Coincident", 14, 2, 15, 1),
    Sketcher.Constraint("Coincident", 15, 2, 12, 1),
    Sketcher.Constraint("Coincident", 16, 2, 17, 1),
    Sketcher.Constraint("Coincident", 17, 2, 18, 1),
    Sketcher.Constraint("Coincident", 18, 2, 19, 1),
    Sketcher.Constraint("Coincident", 19, 2, 16, 1),
    Sketcher.Constraint("Coincident", 20, 2, 21, 1),
    Sketcher.Constraint("Coincident", 21, 2, 22, 1),
    Sketcher.Constraint("Coincident", 22, 2, 23, 1),
    Sketcher.Constraint("Coincident", 23, 2, 20, 1),
    Sketcher.Constraint("Coincident", 24, 2, 25, 1),
    Sketcher.Constraint("Coincident", 25, 2, 26, 1),
    Sketcher.Constraint("Coincident", 26, 2, 27, 1),
    Sketcher.Constraint("Coincident", 27, 2, 24, 1),
    Sketcher.Constraint("Coincident", 28, 2, 29, 1),
    Sketcher.Constraint("Coincident", 29, 2, 30, 1),
    Sketcher.Constraint("Coincident", 30, 2, 31, 1),
    Sketcher.Constraint("Coincident", 31, 2, 28, 1),
    Sketcher.Constraint("Vertical", 0),
    Sketcher.Constraint("Horizontal", 1),
    Sketcher.Constraint("Vertical", 2),
    Sketcher.Constraint("Horizontal", 3),
    Sketcher.Constraint("Vertical", 4),
    Sketcher.Constraint("Horizontal", 5),
    Sketcher.Constraint("Vertical", 6),
    Sketcher.Constraint("Horizontal", 7),
    Sketcher.Constraint("Vertical", 8),
    Sketcher.Constraint("Horizontal", 9),
    Sketcher.Constraint("Vertical", 10),
    Sketcher.Constraint("Horizontal", 11),
    Sketcher.Constraint("Vertical", 12),
    Sketcher.Constraint("Horizontal", 13),
    Sketcher.Constraint("Vertical", 14),
    Sketcher.Constraint("Horizontal", 15),
    Sketcher.Constraint("Vertical", 16),
    Sketcher.Constraint("Horizontal", 17),
    Sketcher.Constraint("Vertical", 18),
    Sketcher.Constraint("Horizontal", 19),
    Sketcher.Constraint("Vertical", 20),
    Sketcher.Constraint("Horizontal", 21),
    Sketcher.Constraint("Vertical", 22),
    Sketcher.Constraint("Horizontal", 23),
    Sketcher.Constraint("Vertical", 24),
    Sketcher.Constraint("Horizontal", 25),
    Sketcher.Constraint("Vertical", 26),
    Sketcher.Constraint("Horizontal", 27),
    Sketcher.Constraint("Vertical", 28),
    Sketcher.Constraint("Horizontal", 29),
    Sketcher.Constraint("Vertical", 30),
    Sketcher.Constraint("Horizontal", 31),
    Sketcher.Constraint("Horizontal", 5, 2, 12, 2),
    Sketcher.Constraint("Horizontal", 7, 2, 14, 2),
    Sketcher.Constraint("Horizontal", 13, 2, 20, 2),
    Sketcher.Constraint("Horizontal", 15, 2, 26, 2),
    Sketcher.Constraint("Vertical", 3, 2, 8, 2),
    Sketcher.Constraint("Vertical", 2, 2, 9, 2),
    Sketcher.Constraint("Vertical", 11, 2, 16, 2),
    Sketcher.Constraint("Vertical", 10, 2, 29, 2),
    Sketcher.Constraint("Equal", 7, 13),
    Sketcher.Constraint("Equal", 23, 25),
    Sketcher.Constraint("Equal", 19, 29),
    Sketcher.Constraint("Equal", 15, 0),
    Sketcher.Constraint("Equal", 11, 4),
    Sketcher.Constraint("Equal", 2, 8),
    Sketcher.Constraint("Equal", 27, 16),
    Sketcher.Constraint("Equal", 31, 20),
    Sketcher.Constraint("Equal", 22, 24),
    Sketcher.Constraint("Equal", 18, 28),
    Sketcher.Constraint("DistanceX", 21, 2, 21, 1, Q("3.2 mm")),
    Sketcher.Constraint("DistanceY", -1, 1, 2, 2, Q("118 mm")),
    Sketcher.Constraint("DistanceY", -1, 1, 8, 2, Q("67.2 mm")),
    Sketcher.Constraint("DistanceX", 1, 2, 1, 1, Q("5.588 mm")),
    Sketcher.Constraint("DistanceX", 5, 2, 5, 1, Q("6.731 mm")),
    Sketcher.Constraint("DistanceX", -1, 1, 0, 2, Q("113.25 mm")),
    Sketcher.Constraint("DistanceX", 17, 2, 17, 1, Q("4.7625 mm")),
    Sketcher.Constraint("DistanceX", -1, 1, 4, 2, Q("91.787 mm")),
    Sketcher.Constraint("DistanceY", -1, 1, 4, 2, Q("89.806 mm")),
    Sketcher.Constraint("DistanceX", -1, 1, 12, 2, Q("135.856 mm")),
    Sketcher.Constraint("DistanceY", -1, 1, 16, 2, Q("101.725 mm")),
    Sketcher.Constraint("DistanceX", -1, 1, 20, 2, Q("122.781 mm")),
    Sketcher.Constraint("DistanceX", -1, 1, 24, 2, Q("101.331 mm")),
    Sketcher.Constraint("DistanceY", -1, 1, 28, 2, Q("80.275 mm")),
])
pocket5 = body.newObject("PartDesign::Pocket", "Pocket004")
pocket5.Profile = sketch7
pocket5.Length = 4.7625
pocket5.Reversed = True

sketch8 = body.newObject("Sketcher::SketchObject", "Sketch007")
sketch8.AttachmentSupport = (doc.getObject("XZ_Plane"), [""])
sketch8.MapMode = "FlatFace"
sketch8.AttachmentOffset = App.Placement(App.Vector(0, 0, -4.7625), App.Rotation())
sketch8.addGeometry([
    Part.Circle(App.Vector(-68, 73.4, 0), App.Vector(0, 0, 1), 1.5),
    Part.Circle(App.Vector(-46.2, 73.4, 0), App.Vector(0, 0, 1), 1.5),
    Part.Circle(App.Vector(-46.2, 109, 0), App.Vector(0, 0, 1), 1.5),
    Part.Circle(App.Vector(-68, 109, 0), App.Vector(0, 0, 1), 1.5),
    Part.Circle(App.Vector(46.2, 73.4, 0), App.Vector(0, 0, 1), 1.5),
    Part.Circle(App.Vector(46.2, 109, 0), App.Vector(0, 0, 1), 1.5),
    Part.Circle(App.Vector(68, 109, 0), App.Vector(0, 0, 1), 1.5),
    Part.Circle(App.Vector(68, 73.4, 0), App.Vector(0, 0, 1), 1.5),
], False)
sketch8.addConstraint([
    Sketcher.Constraint("Equal", 0, 1),
    Sketcher.Constraint("Equal", 1, 2),
    Sketcher.Constraint("Equal", 2, 3),
    Sketcher.Constraint("Equal", 3, 4),
    Sketcher.Constraint("Equal", 4, 5),
    Sketcher.Constraint("Equal", 5, 6),
    Sketcher.Constraint("Equal", 6, 7),
    Sketcher.Constraint("Symmetric", 1, 3, 4, 3, -2),
    Sketcher.Constraint("Symmetric", 2, 3, 5, 3, -2),
    Sketcher.Constraint("Symmetric", 3, 3, 6, 3, -2),
    Sketcher.Constraint("Symmetric", 0, 3, 7, 3, -2),
    Sketcher.Constraint("Horizontal", 0, 3, 1, 3),
    Sketcher.Constraint("Horizontal", 2, 3, 3, 3),
    Sketcher.Constraint("Vertical", 1, 3, 2, 3),
    Sketcher.Constraint("Vertical", 0, 3, 3, 3),
    Sketcher.Constraint("Diameter", 0, Q("3 mm")),
    Sketcher.Constraint("DistanceX", 0, 3, -1, 1, Q("68 mm")),
    Sketcher.Constraint("DistanceY", -1, 1, 2, 3, Q("109 mm")),
    Sketcher.Constraint("DistanceX", 1, 3, -1, 1, Q("46.16 mm")),
    Sketcher.Constraint("DistanceY", -1, 1, 0, 3, Q("73.437 mm")),
])
pocket6 = body.newObject("PartDesign::Pocket", "Pocket005")
pocket6.Profile = sketch8
pocket6.Length = 4.7625
pocket6.Reversed = True

sketch9 = body.newObject("Sketcher::SketchObject", "Sketch008")
sketch9.AttachmentSupport = (doc.getObject("XZ_Plane"), [""])
sketch9.MapMode = "FlatFace"
sketch9.AttachmentOffset = App.Placement(App.Vector(0, 0, -4.7625), App.Rotation())
sketch9.addGeometry([
    Part.Circle(App.Vector(-130.5, -121, 0), App.Vector(0, 0, 1), 1.3),
    Part.Circle(App.Vector(-130.5, -106.3, 0), App.Vector(0, 0, 1), 1.3),
    Part.Circle(App.Vector(-130.5, 106.3, 0), App.Vector(0, 0, 1), 1.3),
    Part.Circle(App.Vector(-130.5, 121, 0), App.Vector(0, 0, 1), 1.3),
    Part.Circle(App.Vector(130.5, 121, 0), App.Vector(0, 0, 1), 1.3),
    Part.Circle(App.Vector(130.5, 106.3, 0), App.Vector(0, 0, 1), 1.3),
    Part.Circle(App.Vector(130.5, -106.3, 0), App.Vector(0, 0, 1), 1.3),
    Part.Circle(App.Vector(130.5, -121, 0), App.Vector(0, 0, 1), 1.3),
], False)
sketch9.addConstraint([
    Sketcher.Constraint("Equal", 0, 1),
    Sketcher.Constraint("Equal", 1, 2),
    Sketcher.Constraint("Equal", 2, 3),
    Sketcher.Constraint("Equal", 3, 4),
    Sketcher.Constraint("Equal", 4, 5),
    Sketcher.Constraint("Equal", 5, 6),
    Sketcher.Constraint("Equal", 6, 7),
    Sketcher.Constraint("Symmetric", 0, 3, 4, 3, -1, 1),
    Sketcher.Constraint("Symmetric", 1, 3, 5, 3, -1, 1),
    Sketcher.Constraint("Symmetric", 2, 3, 6, 3, -1, 1),
    Sketcher.Constraint("Symmetric", 3, 3, 7, 3, -1, 1),
    Sketcher.Constraint("Symmetric", 3, 3, 4, 3, -2),
    Sketcher.Constraint("Symmetric", 2, 3, 5, 3, -2),
    Sketcher.Constraint("Vertical", 0, 3, 1, 3),
    Sketcher.Constraint("Diameter", 0, Q("2.6 mm")),
    Sketcher.Constraint("DistanceY", 0, 3, -1, 1, Q("121 mm")),
    Sketcher.Constraint("DistanceX", 3, 3, 4, 3, Q("261 mm")),
    Sketcher.Constraint("DistanceY", 1, 3, -1, 1, Q("106.3 mm")),
])
pocket7 = body.newObject("PartDesign::Pocket", "Pocket006")
pocket7.Profile = sketch9
pocket7.Length = 4.7625
pocket7.Reversed = True

doc.recompute()
